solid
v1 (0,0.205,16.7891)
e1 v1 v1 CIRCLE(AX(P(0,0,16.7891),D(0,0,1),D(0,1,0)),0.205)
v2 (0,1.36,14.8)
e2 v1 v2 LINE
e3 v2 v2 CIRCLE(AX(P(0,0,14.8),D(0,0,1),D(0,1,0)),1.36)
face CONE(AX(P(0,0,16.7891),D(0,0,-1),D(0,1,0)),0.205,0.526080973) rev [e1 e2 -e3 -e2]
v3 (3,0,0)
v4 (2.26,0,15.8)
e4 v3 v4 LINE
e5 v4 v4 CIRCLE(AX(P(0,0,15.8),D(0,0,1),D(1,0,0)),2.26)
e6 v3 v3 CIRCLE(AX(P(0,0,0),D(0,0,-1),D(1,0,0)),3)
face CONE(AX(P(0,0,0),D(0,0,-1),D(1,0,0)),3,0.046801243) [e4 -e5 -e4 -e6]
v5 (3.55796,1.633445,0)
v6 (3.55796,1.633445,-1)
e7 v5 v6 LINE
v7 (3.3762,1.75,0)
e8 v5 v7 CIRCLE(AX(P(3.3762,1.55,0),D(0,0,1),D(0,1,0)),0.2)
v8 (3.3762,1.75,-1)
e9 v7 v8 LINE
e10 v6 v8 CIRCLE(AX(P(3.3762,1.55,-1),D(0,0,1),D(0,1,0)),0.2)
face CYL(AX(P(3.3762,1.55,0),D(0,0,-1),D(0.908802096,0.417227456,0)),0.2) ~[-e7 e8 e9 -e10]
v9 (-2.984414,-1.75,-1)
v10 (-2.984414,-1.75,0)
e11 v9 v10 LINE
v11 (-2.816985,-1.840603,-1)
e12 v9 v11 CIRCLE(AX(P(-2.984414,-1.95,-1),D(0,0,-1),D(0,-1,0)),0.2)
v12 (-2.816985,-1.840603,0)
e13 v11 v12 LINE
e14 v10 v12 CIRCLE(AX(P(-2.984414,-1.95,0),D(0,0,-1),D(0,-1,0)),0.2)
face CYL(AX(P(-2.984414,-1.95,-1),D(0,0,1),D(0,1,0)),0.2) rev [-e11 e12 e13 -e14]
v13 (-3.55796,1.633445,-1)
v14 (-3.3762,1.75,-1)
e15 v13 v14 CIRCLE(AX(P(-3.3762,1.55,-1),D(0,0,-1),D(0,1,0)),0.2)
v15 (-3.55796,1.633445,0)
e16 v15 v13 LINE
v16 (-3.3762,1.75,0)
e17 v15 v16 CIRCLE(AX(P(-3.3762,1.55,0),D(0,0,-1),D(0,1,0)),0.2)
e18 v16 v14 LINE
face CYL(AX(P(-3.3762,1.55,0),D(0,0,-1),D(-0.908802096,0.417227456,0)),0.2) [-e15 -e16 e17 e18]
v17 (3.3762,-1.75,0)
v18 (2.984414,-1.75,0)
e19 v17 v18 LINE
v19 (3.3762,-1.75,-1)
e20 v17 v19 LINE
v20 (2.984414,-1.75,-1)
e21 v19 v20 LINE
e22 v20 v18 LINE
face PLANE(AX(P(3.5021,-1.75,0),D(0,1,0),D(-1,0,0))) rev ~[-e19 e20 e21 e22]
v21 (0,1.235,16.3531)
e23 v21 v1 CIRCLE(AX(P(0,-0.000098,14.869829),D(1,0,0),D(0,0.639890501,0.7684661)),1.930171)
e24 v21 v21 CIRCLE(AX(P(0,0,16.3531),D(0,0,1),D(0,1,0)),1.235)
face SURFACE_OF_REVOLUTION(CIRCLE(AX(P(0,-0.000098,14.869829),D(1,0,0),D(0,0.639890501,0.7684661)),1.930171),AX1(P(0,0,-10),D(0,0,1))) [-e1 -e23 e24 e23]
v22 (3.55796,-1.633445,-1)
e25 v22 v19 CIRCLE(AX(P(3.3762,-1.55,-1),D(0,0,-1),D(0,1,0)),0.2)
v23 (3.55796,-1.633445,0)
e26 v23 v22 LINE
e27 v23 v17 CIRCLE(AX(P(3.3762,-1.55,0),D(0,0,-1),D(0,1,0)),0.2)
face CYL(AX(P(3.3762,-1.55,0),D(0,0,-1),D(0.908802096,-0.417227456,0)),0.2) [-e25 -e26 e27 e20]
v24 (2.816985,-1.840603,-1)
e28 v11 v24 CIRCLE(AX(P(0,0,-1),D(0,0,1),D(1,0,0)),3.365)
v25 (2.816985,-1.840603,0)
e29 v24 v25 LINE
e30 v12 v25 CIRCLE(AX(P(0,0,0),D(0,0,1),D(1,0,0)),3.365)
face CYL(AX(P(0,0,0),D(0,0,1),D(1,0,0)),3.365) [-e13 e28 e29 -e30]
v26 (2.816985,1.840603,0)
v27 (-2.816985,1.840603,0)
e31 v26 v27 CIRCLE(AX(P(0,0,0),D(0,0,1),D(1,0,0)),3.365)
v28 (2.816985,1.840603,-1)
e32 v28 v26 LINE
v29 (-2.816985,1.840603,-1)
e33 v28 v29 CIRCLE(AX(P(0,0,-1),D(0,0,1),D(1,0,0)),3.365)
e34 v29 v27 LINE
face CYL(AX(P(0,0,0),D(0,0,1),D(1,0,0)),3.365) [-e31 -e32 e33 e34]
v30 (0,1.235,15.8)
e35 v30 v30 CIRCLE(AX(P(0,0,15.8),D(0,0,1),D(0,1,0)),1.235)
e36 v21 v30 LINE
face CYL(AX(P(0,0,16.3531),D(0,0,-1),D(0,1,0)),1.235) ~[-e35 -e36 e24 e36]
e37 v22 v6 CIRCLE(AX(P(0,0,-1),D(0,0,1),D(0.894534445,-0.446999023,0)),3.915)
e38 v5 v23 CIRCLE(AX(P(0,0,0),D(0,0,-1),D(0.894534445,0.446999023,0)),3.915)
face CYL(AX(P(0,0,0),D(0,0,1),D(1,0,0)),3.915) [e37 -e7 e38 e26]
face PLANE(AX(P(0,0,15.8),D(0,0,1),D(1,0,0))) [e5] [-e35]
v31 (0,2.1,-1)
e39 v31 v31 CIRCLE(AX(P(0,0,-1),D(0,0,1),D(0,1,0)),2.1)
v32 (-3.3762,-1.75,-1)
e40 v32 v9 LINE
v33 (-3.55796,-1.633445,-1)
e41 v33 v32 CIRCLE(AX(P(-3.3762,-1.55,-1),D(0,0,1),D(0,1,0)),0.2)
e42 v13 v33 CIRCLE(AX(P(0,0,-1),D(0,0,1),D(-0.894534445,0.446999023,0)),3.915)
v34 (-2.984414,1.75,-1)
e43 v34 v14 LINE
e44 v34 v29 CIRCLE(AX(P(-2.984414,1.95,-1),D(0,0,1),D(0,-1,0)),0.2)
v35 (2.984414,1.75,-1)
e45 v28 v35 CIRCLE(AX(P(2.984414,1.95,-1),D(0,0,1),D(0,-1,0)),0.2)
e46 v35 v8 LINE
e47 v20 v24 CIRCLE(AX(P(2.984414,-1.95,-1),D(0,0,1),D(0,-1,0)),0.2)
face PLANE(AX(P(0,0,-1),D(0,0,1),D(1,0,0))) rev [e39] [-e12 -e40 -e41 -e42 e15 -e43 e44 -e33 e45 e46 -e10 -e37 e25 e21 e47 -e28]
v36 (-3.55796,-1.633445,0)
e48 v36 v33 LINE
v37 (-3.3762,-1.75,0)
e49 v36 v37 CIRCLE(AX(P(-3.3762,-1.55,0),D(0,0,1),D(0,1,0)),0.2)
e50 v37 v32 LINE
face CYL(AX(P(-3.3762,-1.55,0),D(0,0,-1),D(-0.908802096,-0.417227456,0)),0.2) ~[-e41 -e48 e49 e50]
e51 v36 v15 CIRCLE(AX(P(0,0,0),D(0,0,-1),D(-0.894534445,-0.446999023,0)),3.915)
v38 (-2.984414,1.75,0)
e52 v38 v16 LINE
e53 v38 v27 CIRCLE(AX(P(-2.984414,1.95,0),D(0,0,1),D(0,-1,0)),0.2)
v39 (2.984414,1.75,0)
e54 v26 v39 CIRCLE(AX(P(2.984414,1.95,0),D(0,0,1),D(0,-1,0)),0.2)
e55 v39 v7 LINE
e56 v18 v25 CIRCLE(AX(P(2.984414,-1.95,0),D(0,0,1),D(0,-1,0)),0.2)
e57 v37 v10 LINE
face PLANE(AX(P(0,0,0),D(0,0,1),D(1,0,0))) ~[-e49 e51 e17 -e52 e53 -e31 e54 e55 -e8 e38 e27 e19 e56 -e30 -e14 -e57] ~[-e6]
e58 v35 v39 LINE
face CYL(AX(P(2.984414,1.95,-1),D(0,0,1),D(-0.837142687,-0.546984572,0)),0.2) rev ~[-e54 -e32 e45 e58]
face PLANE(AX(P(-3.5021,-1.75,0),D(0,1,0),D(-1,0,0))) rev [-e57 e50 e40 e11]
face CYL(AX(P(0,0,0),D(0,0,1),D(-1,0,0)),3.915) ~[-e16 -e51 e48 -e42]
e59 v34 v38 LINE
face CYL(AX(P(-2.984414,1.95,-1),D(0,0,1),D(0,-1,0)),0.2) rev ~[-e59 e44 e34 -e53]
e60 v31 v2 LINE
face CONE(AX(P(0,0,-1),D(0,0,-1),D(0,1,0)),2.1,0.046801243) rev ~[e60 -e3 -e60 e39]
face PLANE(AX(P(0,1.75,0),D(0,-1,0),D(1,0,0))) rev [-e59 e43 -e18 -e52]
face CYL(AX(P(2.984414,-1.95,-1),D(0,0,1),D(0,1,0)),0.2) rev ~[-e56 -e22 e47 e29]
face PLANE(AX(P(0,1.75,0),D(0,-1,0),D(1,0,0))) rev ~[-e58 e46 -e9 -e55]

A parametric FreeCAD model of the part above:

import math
import FreeCAD as App
import Part
import Sketcher


def edges_at(feature, points):
    """Names of the edges that pass closest to the given points."""
    edges = feature.Shape.Edges
    near = lambda p: min(range(len(edges)), key=lambda i: edges[i].distToShape(Part.Vertex(*p))[0])
    return sorted({f"Edge{near(p) + 1}" for p in points})


def add_polygon(sketch, points):
    """Adds a closed chain of lines whose ends are joined by coincident constraints."""
    first, n = sketch.GeometryCount, len(points)
    for a, b in zip(points, points[1:] + points[:1]):
        sketch.addGeometry(Part.LineSegment(App.Vector(*a, 0), App.Vector(*b, 0)), False)
    for i in range(n):
        sketch.addConstraint(Sketcher.Constraint("Coincident", first + i, 2, first + (i + 1) % n, 1))

doc = App.newDocument("Part")
body = doc.addObject("PartDesign::Body", "Body")

# Sketch on XZ plane
sketch1 = doc.addObject("Sketcher::SketchObject", "Sketch")
body.addObject(sketch1)
sketch1.AttachmentSupport = (doc.XZ_Plane, [""])
sketch1.MapMode = "FlatFace"
add_polygon(sketch1, [(3, 0), (0, 0), (0, 15.8), (2.3, 15.8)])  # lines 0-3
sketch1.addConstraint([
    Sketcher.Constraint("Horizontal", 0),
    Sketcher.Constraint("Vertical", 1),
    Sketcher.Constraint("Horizontal", 2),
    Sketcher.Constraint("Coincident", 0, 2, -1, 1),
    Sketcher.Constraint("DistanceX", 0, 2, 0, 1, 3.0),
    Sketcher.Constraint("DistanceY", 1, 1, 1, 2, 15.8),
    Sketcher.Constraint("DistanceX", 2, 1, 2, 2, 2.26),
])
revolution = doc.addObject("PartDesign::Revolution", "Revolution")
body.addObject(revolution)
revolution.Profile = sketch1
revolution.ReferenceAxis = (sketch1, ["V_Axis"])
revolution.Angle = 360

# Sketch on XY plane
sketch2 = doc.addObject("Sketcher::SketchObject", "Sketch001")
body.addObject(sketch2)
sketch2.AttachmentSupport = (doc.XY_Plane, [""])
sketch2.MapMode = "FlatFace"
sketch2.addGeometry(Part.Circle(App.Vector(0, 0, 0), App.Vector(0, 0, 1), 3.4), False)
sketch2.addConstraint([
    Sketcher.Constraint("Coincident", 0, 3, -1, 1),
    Sketcher.Constraint("Diameter", 0, 6.73),
])
pad1 = doc.addObject("PartDesign::Pad", "Pad")
body.addObject(pad1)
pad1.Profile = sketch2
pad1.Length = 1
pad1.Reversed = True

# Sketch on XY plane
sketch3 = doc.addObject("Sketcher::SketchObject", "Sketch002")
body.addObject(sketch3)
sketch3.AttachmentSupport = (doc.XY_Plane, [""])
sketch3.MapMode = "FlatFace"
sketch3.addGeometry([
    Part.ArcOfCircle(Part.Circle(App.Vector(0, 0, 0), App.Vector(0, 0, 1), 3.9), math.radians(-27), math.radians(27)),
    Part.LineSegment(App.Vector(3.5, 1.8, 0), App.Vector(0, 1.8, 0)),
    Part.LineSegment(App.Vector(0, 1.8, 0), App.Vector(0, -1.8, 0)),
    Part.LineSegment(App.Vector(0, -1.8, 0), App.Vector(3.5, -1.8, 0)),
], False)
sketch3.addConstraint([
    Sketcher.Constraint("Coincident", 0, 2, 1, 1),
    Sketcher.Constraint("Coincident", 1, 2, 2, 1),
    Sketcher.Constraint("Coincident", 2, 2, 3, 1),
    Sketcher.Constraint("Coincident", 3, 2, 0, 1),
    Sketcher.Constraint("Horizontal", 1),
    Sketcher.Constraint("Vertical", 2),
    Sketcher.Constraint("Horizontal", 3),
    Sketcher.Constraint("Coincident", 0, 3, -1, 1),
    Sketcher.Constraint("Symmetric", 1, 2, 2, 2, -1, 1),
    Sketcher.Constraint("DistanceY", 2, 2, 2, 1, 3.5),
    Sketcher.Constraint("Radius", 0, 3.915),
])
pad2 = doc.addObject("PartDesign::Pad", "Pad001")
body.addObject(pad2)
pad2.Profile = sketch3
pad2.Length = 1
pad2.Reversed = True
doc.recompute()

fillet = doc.addObject("PartDesign::Fillet", "Fillet")
body.addObject(fillet)
fillet.Base = (pad2, edges_at(pad2, [
    (2.874, 1.75, -0.5),
    (2.874, -1.75, -0.5),
    (3.502, 1.75, -0.5),
    (3.502, -1.75, -0.5),
]))
fillet.Radius = 0.2
doc.recompute()

mirrored = doc.addObject("PartDesign::Mirrored", "Mirrored")
body.addObject(mirrored)
mirrored.Originals = [pad2, fillet]
mirrored.MirrorPlane = (doc.YZ_Plane, [""])
body.Tip = mirrored

# Sketch on YZ plane
sketch4 = doc.addObject("Sketcher::SketchObject", "Sketch003")
body.addObject(sketch4)
sketch4.AttachmentSupport = (doc.YZ_Plane, [""])
sketch4.MapMode = "FlatFace"
sketch4.addGeometry([
    Part.LineSegment(App.Vector(0, 15.8, 0), App.Vector(1.2, 15.8, 0)),
    Part.LineSegment(App.Vector(1.2, 15.8, 0), App.Vector(1.2, 16.4, 0)),
    Part.ArcOfCircle(Part.Circle(App.Vector(0, 14.9, 0), App.Vector(0, 0, 1), 1.9), math.radians(50), math.radians(90)),
    Part.LineSegment(App.Vector(0, 16.8, 0), App.Vector(0, 15.8, 0)),
], False)
sketch4.addConstraint([
    Sketcher.Constraint("Coincident", 0, 2, 1, 1),
    Sketcher.Constraint("Coincident", 1, 2, 2, 1),
    Sketcher.Constraint("Coincident", 2, 2, 3, 1),
    Sketcher.Constraint("Coincident", 3, 2, 0, 1),
    Sketcher.Constraint("Horizontal", 0),
    Sketcher.Constraint("Vertical", 1),
    Sketcher.Constraint("Vertical", 3),
    Sketcher.Constraint("PointOnObject", 2, 3, -2),
    Sketcher.Constraint("PointOnObject", 2, 2, -2),
    Sketcher.Constraint("DistanceX", 0, 1, 0, 2, 1.235),
    Sketcher.Constraint("DistanceY", 3, 2, 3, 1, 1.0),
    Sketcher.Constraint("Radius", 2, 1.93),
    Sketcher.Constraint("DistanceY", -1, 1, 0, 2, 15.8),
])
revolution2 = doc.addObject("PartDesign::Revolution", "Revolution001")
body.addObject(revolution2)
revolution2.Profile = sketch4
revolution2.ReferenceAxis = (sketch4, ["V_Axis"])
revolution2.Angle = 360

# Sketch on YZ plane
sketch5 = doc.addObject("Sketcher::SketchObject", "Sketch004")
body.addObject(sketch5)
sketch5.AttachmentSupport = (doc.YZ_Plane, [""])
sketch5.MapMode = "FlatFace"
add_polygon(sketch5, [(0, -1), (2.1, -1), (1.36, 14.8), (0.2, 16.79), (0.2, 18.01), (0, 18.01)])  # lines 0-5
sketch5.addConstraint([
    Sketcher.Constraint("Horizontal", 0),
    Sketcher.Constraint("Vertical", 3),
    Sketcher.Constraint("Horizontal", 4),
    Sketcher.Constraint("Vertical", 5),
    Sketcher.Constraint("PointOnObject", 4, 2, -2),
    Sketcher.Constraint("DistanceX", 0, 1, 0, 2, 2.1),
    Sketcher.Constraint("DistanceY", 0, 2, -1, 1, 1.0),
    Sketcher.Constraint("DistanceX", 4, 2, 4, 1, 0.205),
    Sketcher.Constraint("Distance", 2, 2.3),
    Sketcher.Constraint("DistanceY", -1, 1, 1, 2, 14.8),
    Sketcher.Constraint("DistanceY", 3, 1, 3, 2, 1.222),
    Sketcher.Constraint("DistanceX", -1, 1, 1, 2, 1.36),
])
groove = doc.addObject("PartDesign::Groove", "Groove")
body.addObject(groove)
groove.Profile = sketch5
groove.ReferenceAxis = (sketch5, ["V_Axis"])
groove.Angle = 360

doc.recompute()
